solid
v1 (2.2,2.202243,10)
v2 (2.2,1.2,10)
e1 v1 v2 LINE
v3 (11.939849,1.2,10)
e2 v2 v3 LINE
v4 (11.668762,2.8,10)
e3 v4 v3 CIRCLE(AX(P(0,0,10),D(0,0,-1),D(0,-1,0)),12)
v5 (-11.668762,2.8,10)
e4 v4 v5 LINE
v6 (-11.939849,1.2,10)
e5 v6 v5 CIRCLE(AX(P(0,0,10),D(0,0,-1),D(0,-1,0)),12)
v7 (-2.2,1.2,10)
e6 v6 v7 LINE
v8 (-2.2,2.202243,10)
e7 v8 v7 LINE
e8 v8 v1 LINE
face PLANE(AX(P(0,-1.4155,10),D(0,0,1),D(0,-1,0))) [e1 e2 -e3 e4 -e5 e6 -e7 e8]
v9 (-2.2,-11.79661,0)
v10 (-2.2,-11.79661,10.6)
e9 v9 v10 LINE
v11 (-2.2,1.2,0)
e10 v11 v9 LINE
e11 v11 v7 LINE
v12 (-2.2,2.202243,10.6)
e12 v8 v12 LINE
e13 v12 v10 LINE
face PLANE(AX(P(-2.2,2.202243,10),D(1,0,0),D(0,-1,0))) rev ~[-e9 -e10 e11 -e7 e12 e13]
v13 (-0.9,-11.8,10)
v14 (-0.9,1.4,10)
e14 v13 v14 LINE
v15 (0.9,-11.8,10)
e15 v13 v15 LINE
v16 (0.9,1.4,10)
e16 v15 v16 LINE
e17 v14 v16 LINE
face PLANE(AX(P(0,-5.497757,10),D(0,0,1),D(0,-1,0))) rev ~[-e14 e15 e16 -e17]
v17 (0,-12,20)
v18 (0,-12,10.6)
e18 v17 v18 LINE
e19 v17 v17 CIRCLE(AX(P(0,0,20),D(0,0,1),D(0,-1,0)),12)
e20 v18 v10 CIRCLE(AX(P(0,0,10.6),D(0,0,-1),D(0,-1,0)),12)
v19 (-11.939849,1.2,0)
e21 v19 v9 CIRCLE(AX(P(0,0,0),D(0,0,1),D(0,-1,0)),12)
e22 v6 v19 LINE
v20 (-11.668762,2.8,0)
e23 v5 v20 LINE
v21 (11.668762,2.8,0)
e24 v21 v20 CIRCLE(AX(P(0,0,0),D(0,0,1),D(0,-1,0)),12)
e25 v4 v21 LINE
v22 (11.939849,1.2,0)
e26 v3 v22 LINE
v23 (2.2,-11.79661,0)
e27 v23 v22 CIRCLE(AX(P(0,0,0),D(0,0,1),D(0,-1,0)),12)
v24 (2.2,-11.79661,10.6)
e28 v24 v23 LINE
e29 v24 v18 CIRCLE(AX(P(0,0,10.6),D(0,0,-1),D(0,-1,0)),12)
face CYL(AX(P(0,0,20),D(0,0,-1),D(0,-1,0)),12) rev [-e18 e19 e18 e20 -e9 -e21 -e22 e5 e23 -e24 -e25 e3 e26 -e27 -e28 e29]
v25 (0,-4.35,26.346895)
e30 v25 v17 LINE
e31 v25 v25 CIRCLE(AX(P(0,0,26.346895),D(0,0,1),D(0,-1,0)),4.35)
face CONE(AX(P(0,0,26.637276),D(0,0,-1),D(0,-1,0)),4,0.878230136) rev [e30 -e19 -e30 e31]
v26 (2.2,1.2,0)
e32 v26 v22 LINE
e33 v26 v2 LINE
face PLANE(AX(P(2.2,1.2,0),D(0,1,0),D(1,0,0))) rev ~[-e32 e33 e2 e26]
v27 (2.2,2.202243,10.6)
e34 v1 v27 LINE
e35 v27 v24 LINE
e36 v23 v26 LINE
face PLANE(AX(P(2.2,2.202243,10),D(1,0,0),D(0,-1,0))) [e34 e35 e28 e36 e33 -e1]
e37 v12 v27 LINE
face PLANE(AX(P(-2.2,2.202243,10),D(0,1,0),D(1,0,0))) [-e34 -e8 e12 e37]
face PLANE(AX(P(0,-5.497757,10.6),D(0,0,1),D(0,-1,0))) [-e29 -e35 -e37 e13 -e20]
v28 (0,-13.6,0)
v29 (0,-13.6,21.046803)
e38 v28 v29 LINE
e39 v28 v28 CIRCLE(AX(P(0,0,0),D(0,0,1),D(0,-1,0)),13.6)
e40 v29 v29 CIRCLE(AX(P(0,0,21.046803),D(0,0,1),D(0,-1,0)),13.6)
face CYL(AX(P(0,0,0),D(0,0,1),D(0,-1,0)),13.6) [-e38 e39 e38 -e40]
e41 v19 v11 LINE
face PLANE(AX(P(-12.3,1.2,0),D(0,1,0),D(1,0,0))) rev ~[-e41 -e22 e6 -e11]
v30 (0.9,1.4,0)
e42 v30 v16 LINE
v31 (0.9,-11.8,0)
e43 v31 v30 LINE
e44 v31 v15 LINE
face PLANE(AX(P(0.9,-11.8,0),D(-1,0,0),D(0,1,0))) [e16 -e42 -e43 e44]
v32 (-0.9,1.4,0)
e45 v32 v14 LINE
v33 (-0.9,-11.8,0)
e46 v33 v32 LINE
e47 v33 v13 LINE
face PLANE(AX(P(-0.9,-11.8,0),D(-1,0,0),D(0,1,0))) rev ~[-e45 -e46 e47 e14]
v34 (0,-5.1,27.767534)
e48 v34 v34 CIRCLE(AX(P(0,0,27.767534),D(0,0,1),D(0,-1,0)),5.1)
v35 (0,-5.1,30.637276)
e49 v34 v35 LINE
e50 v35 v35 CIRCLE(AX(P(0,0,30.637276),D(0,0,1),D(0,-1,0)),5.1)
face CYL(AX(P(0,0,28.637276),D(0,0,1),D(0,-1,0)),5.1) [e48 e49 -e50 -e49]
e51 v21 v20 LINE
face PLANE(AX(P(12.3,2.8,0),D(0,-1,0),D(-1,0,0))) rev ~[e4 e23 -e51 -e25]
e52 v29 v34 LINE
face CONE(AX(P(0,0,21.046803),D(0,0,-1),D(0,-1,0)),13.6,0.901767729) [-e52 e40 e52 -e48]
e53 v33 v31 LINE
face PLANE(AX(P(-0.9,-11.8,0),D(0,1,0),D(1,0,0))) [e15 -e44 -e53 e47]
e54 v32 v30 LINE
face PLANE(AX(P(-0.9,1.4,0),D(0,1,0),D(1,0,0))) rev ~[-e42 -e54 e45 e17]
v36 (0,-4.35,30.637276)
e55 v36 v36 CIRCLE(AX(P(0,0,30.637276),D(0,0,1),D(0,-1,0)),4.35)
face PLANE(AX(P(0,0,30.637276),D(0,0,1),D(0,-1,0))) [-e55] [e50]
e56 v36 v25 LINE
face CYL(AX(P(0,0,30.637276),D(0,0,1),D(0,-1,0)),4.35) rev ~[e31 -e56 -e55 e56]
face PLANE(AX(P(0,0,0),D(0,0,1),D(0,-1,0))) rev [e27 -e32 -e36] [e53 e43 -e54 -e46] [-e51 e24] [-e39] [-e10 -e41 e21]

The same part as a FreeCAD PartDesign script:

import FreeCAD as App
import Part
import Sketcher

V = App.Vector


def add_polygon(sketch, points):
    """Adds a closed chain of lines whose ends are joined by coincident constraints."""
    first, n = sketch.GeometryCount, len(points)
    for a, b in zip(points, points[1:] + points[:1]):
        sketch.addGeometry(Part.LineSegment(App.Vector(*a, 0), App.Vector(*b, 0)), False)
    for i in range(n):
        sketch.addConstraint(Sketcher.Constraint("Coincident", first + i, 2, first + (i + 1) % n, 1))

doc = App.newDocument("Part")
params = doc.addObject("Spreadsheet::Sheet", "Params")
for row, (alias, value) in enumerate([
    ("sketch1_width", "4 mm"),
    ("sketch1_height", "2 mm"),
    ("sketch1_height2", "20 mm"),
    ("sketch1_width2", "1.6 mm"),
    ("revolution_angle", "360 deg"),
    ("sketch2_width", "4.4 mm"),
    ("sketch2_width2", "10.1 mm"),
    ("sketch2_height", "13.8 mm"),
    ("sketch2_height2", "1.6 mm"),
    ("pad1_length", "10 mm"),
    ("sketch3_width", "1.8 mm"),
    ("sketch3_height", "13.2 mm"),
    ("pocket1_length", "10 mm"),
    ("sketch4_diameter", "10.2 mm"),
    ("pad2_length", "4 mm"),
    ("sketch5_diameter", "8.7 mm"),
    ("pocket2_length", "6 mm"),
    ("sketch6_width", "4.4 mm"),
    ("sketch6_height", "15.4 mm"),
    ("pad3_length", "0.6 mm"),
], start=1):
    params.set(f"A{row}", alias)
    params.set(f"B{row}", "=" + value)
    params.setAlias(f"B{row}", alias)

body = doc.addObject("PartDesign::Body", "Body")

sketch1 = body.newObject("Sketcher::SketchObject", "Sketch")
sketch1.AttachmentSupport = (doc.getObject("YZ_Plane"), [""])
sketch1.MapMode = "FlatFace"
add_polygon(sketch1, [(-12, 20), (-4, 26.637276), (0, 26.637276), (0, 28.637276), (-4, 28.637276), (-13.6, 21.046803), (-13.6, 0), (-12, 0)])
sketch1.addConstraint(Sketcher.Constraint("Horizontal", 1))
sketch1.addConstraint(Sketcher.Constraint("Vertical", 2))
sketch1.addConstraint(Sketcher.Constraint("Horizontal", 3))
sketch1.addConstraint(Sketcher.Constraint("Vertical", 5))
sketch1.addConstraint(Sketcher.Constraint("Horizontal", 6))
sketch1.addConstraint(Sketcher.Constraint("Vertical", 7))
sketch1.addConstraint(Sketcher.Constraint("PointOnObject", 1, 2, -2))
sketch1.addConstraint(Sketcher.Constraint("PointOnObject", 5, 2, -1))
sketch1.addConstraint(Sketcher.Constraint("Vertical", 0, 2, 3, 2))
sketch1.addConstraint(Sketcher.Constraint("DistanceX", 1, 1, 1, 2, 4.0))
sketch1.addConstraint(Sketcher.Constraint("DistanceY", 2, 1, 2, 2, 2.0))
sketch1.addConstraint(Sketcher.Constraint("DistanceY", 7, 1, 7, 2, 20.0))
sketch1.addConstraint(Sketcher.Constraint("DistanceX", 6, 1, 6, 2, 1.6))
sketch1.addConstraint(Sketcher.Constraint("DistanceX", 6, 2, -1, 1, 12.0))
sketch1.addConstraint(Sketcher.Constraint("Distance", 4, 12.238271))
sketch1.addConstraint(Sketcher.Constraint("DistanceY", 5, 2, 5, 1, 21.046803))
sketch1.setExpression("Constraints[17]", "Params.sketch1_width")
sketch1.setExpression("Constraints[18]", "Params.sketch1_height")
sketch1.setExpression("Constraints[19]", "Params.sketch1_height2")
sketch1.setExpression("Constraints[20]", "Params.sketch1_width2")
revolution = body.newObject("PartDesign::Revolution", "Revolution")
revolution.Profile = sketch1
revolution.ReferenceAxis = (sketch1, ["V_Axis"])
revolution.setExpression("Angle", "Params.revolution_angle")

sketch2 = body.newObject("Sketcher::SketchObject", "Sketch001")
sketch2.AttachmentSupport = (doc.getObject("XY_Plane"), [""])
sketch2.MapMode = "FlatFace"
add_polygon(sketch2, [(2.2, 1.2), (2.2, -12.6), (-2.2, -12.6), (-2.2, 1.2), (-12.3, 1.2), (-12.3, 2.8), (12.3, 2.8), (12.3, 1.2)])
sketch2.addConstraint(Sketcher.Constraint("Vertical", 0))
sketch2.addConstraint(Sketcher.Constraint("Horizontal", 1))
sketch2.addConstraint(Sketcher.Constraint("Vertical", 2))
sketch2.addConstraint(Sketcher.Constraint("Horizontal", 3))
sketch2.addConstraint(Sketcher.Constraint("Vertical", 4))
sketch2.addConstraint(Sketcher.Constraint("Horizontal", 5))
sketch2.addConstraint(Sketcher.Constraint("Vertical", 6))
sketch2.addConstraint(Sketcher.Constraint("Horizontal", 7))
sketch2.addConstraint(Sketcher.Constraint("Symmetric", 3, 2, 6, 2, -2))
sketch2.addConstraint(Sketcher.Constraint("Equal", 3, 7))
sketch2.addConstraint(Sketcher.Constraint("DistanceX", 1, 2, 1, 1, 4.4))
sketch2.addConstraint(Sketcher.Constraint("DistanceX", 3, 2, 3, 1, 10.1))
sketch2.addConstraint(Sketcher.Constraint("DistanceY", 0, 2, 0, 1, 13.8))
sketch2.addConstraint(Sketcher.Constraint("DistanceY", 4, 1, 4, 2, 1.6))
sketch2.addConstraint(Sketcher.Constraint("DistanceY", 0, 2, -1, 1, 12.6))
sketch2.setExpression("Constraints[18]", "Params.sketch2_width")
sketch2.setExpression("Constraints[19]", "Params.sketch2_width2")
sketch2.setExpression("Constraints[20]", "Params.sketch2_height")
sketch2.setExpression("Constraints[21]", "Params.sketch2_height2")
pad1 = body.newObject("PartDesign::Pad", "Pad")
pad1.Profile = sketch2
pad1.setExpression("Length", "Params.pad1_length")

sketch3 = body.newObject("Sketcher::SketchObject", "Sketch002")
sketch3.AttachmentSupport = (doc.getObject("XY_Plane"), [""])
sketch3.MapMode = "FlatFace"
add_polygon(sketch3, [(0.9, -11.8), (-0.9, -11.8), (-0.9, 1.4), (0.9, 1.4)])
sketch3.addConstraint(Sketcher.Constraint("Horizontal", 0))
sketch3.addConstraint(Sketcher.Constraint("Vertical", 1))
sketch3.addConstraint(Sketcher.Constraint("Horizontal", 2))
sketch3.addConstraint(Sketcher.Constraint("Vertical", 3))
sketch3.addConstraint(Sketcher.Constraint("DistanceX", 0, 2, 0, 1, 1.8))
sketch3.addConstraint(Sketcher.Constraint("DistanceY", 1, 1, 1, 2, 13.2))
sketch3.addConstraint(Sketcher.Constraint("DistanceX", 0, 2, -1, 1, 0.9))
sketch3.addConstraint(Sketcher.Constraint("DistanceY", 0, 2, -1, 1, 11.8))
sketch3.setExpression("Constraints[8]", "Params.sketch3_width")
sketch3.setExpression("Constraints[9]", "Params.sketch3_height")
pocket1 = body.newObject("PartDesign::Pocket", "Pocket")
pocket1.Profile = sketch3
pocket1.setExpression("Length", "Params.pocket1_length")
pocket1.Reversed = True

sketch4 = body.newObject("Sketcher::SketchObject", "Sketch003")
sketch4.AttachmentSupport = (doc.getObject("XY_Plane"), [""])
sketch4.MapMode = "FlatFace"
sketch4.AttachmentOffset = App.Placement(V(0, 0, 28.637276), App.Rotation())
sketch4.addGeometry(Part.Circle(V(0, 0, 0), V(0, 0, 1), 5.1), False)
sketch4.addConstraint(Sketcher.Constraint("Coincident", 0, 3, -1, 1))
sketch4.addConstraint(Sketcher.Constraint("Diameter", 0, 10.2))
sketch4.setExpression("Constraints[1]", "Params.sketch4_diameter")
pad2 = body.newObject("PartDesign::Pad", "Pad001")
pad2.Profile = sketch4
pad2.setExpression("Length", "Params.pad2_length")
pad2.Midplane = True

sketch5 = body.newObject("Sketcher::SketchObject", "Sketch004")
sketch5.AttachmentSupport = (doc.getObject("XY_Plane"), [""])
sketch5.MapMode = "FlatFace"
sketch5.AttachmentOffset = App.Placement(V(0, 0, 30.637276), App.Rotation())
sketch5.addGeometry(Part.Circle(V(0, 0, 0), V(0, 0, 1), 4.35), False)
sketch5.addConstraint(Sketcher.Constraint("Coincident", 0, 3, -1, 1))
sketch5.addConstraint(Sketcher.Constraint("Diameter", 0, 8.7))
sketch5.setExpression("Constraints[1]", "Params.sketch5_diameter")
pocket2 = body.newObject("PartDesign::Pocket", "Pocket001")
pocket2.Profile = sketch5
pocket2.setExpression("Length", "Params.pocket2_length")

sketch6 = body.newObject("Sketcher::SketchObject", "Sketch005")
sketch6.AttachmentSupport = (doc.getObject("XY_Plane"), [""])
sketch6.MapMode = "FlatFace"
sketch6.AttachmentOffset = App.Placement(V(0, 0, 10), App.Rotation())
add_polygon(sketch6, [(2.2, 2.202243), (-2.2, 2.202243), (-2.2, -13.197757), (2.2, -13.197757)])
sketch6.addConstraint(Sketcher.Constraint("Horizontal", 0))
sketch6.addConstraint(Sketcher.Constraint("Vertical", 1))
sketch6.addConstraint(Sketcher.Constraint("Horizontal", 2))
sketch6.addConstraint(Sketcher.Constraint("Vertical", 3))
sketch6.addConstraint(Sketcher.Constraint("DistanceX", 0, 2, 0, 1, 4.4))
sketch6.addConstraint(Sketcher.Constraint("DistanceY", 1, 2, 1, 1, 15.4))
sketch6.addConstraint(Sketcher.Constraint("DistanceX", 0, 2, -1, 1, 2.2))
sketch6.addConstraint(Sketcher.Constraint("DistanceY", -1, 1, 0, 2, 2.202243))
sketch6.setExpression("Constraints[8]", "Params.sketch6_width")
sketch6.setExpression("Constraints[9]", "Params.sketch6_height")
pad3 = body.newObject("PartDesign::Pad", "Pad002")
pad3.Profile = sketch6
pad3.setExpression("Length", "Params.pad3_length")

doc.recompute()
